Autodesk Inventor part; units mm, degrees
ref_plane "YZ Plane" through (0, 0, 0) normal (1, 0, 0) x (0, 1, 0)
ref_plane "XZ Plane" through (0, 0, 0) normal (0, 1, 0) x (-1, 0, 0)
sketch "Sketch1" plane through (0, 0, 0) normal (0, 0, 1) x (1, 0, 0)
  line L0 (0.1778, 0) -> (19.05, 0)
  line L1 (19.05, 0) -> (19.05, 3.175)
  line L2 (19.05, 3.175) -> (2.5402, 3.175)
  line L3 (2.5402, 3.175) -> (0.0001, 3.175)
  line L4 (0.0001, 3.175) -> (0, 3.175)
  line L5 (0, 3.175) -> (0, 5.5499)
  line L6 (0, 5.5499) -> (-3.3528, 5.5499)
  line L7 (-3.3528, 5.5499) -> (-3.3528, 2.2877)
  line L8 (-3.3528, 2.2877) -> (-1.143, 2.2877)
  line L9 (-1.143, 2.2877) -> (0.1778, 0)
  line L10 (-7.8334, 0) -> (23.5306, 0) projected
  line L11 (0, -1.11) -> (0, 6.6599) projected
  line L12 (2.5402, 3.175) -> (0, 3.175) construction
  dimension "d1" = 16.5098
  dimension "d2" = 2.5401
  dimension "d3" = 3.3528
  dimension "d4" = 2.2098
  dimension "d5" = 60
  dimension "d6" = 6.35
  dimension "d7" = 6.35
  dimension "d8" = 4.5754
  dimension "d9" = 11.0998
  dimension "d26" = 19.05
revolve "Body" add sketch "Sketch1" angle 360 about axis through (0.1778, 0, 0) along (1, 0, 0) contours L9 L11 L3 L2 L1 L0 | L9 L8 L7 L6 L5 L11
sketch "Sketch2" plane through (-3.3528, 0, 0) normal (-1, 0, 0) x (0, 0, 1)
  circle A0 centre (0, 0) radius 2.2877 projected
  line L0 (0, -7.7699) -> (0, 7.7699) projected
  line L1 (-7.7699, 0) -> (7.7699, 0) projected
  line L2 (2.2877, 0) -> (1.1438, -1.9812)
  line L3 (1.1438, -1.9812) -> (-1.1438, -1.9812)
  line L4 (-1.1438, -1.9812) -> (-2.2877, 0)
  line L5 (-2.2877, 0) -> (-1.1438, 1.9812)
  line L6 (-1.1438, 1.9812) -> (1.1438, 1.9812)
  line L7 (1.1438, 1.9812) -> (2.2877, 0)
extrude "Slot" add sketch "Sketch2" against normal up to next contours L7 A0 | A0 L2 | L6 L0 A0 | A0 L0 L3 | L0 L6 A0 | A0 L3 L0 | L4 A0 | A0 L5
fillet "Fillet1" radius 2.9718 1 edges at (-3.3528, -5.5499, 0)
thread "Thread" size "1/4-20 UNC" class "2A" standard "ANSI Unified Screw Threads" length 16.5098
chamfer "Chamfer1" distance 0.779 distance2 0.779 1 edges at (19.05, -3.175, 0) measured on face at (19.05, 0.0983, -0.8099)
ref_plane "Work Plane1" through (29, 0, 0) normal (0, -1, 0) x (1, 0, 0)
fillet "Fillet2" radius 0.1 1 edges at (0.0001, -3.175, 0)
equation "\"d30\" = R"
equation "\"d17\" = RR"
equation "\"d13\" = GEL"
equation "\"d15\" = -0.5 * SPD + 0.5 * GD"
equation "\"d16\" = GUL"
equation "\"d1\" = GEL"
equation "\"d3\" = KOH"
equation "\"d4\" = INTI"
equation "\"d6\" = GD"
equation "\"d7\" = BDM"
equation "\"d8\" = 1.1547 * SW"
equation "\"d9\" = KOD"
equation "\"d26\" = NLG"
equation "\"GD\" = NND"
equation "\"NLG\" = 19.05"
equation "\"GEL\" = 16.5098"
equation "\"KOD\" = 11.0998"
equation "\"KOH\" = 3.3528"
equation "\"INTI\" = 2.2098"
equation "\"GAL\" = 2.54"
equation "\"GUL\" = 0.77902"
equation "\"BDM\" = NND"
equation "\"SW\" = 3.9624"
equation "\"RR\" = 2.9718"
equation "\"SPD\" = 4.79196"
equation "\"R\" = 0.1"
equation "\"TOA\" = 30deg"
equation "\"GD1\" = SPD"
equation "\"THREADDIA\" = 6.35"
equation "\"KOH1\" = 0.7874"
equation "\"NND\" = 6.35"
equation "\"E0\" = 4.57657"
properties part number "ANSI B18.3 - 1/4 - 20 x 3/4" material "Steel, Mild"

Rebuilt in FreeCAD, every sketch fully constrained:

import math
import FreeCAD as App
import Part
import Sketcher

V = App.Vector
Q = App.Units.Quantity


def edges_at(feature, points):
    """Names of the edges that pass closest to the given points."""
    edges = feature.Shape.Edges
    near = lambda p: min(range(len(edges)), key=lambda i: edges[i].distToShape(Part.Vertex(*p))[0])
    return sorted({f"Edge{near(p) + 1}" for p in points})

doc = App.newDocument("Part")
params = doc.addObject("Spreadsheet::Sheet", "Params")
for row, (alias, value) in enumerate([
    ("sketch1_width", "0.75 in"),
    ("sketch1_width2", "0.132 in"),
    ("sketch1_width3", "0.087 in"),
    ("sketch1_width4", "0.743 in"),
    ("sketch1_height", "0.125 in"),
    ("revolution_angle", "360 deg"),
    ("pad1_length", "2.3868 mm"),
    ("fillet_radius", "0.117 in"),
    ("chamfer_size", "0.779 mm"),
    ("chamfer_size2", "0.779 mm"),
    ("fillet2_radius", "0.1 mm"),
], start=1):
    params.set(f"A{row}", alias)
    params.set(f"B{row}", "=" + value)
    params.setAlias(f"B{row}", alias)

body = doc.addObject("PartDesign::Body", "Body")

sketch1 = body.newObject("Sketcher::SketchObject", "Sketch")
sketch1.AttachmentSupport = (doc.getObject("XY_Plane"), [""])
sketch1.MapMode = "FlatFace"
sketch1.addGeometry([
    Part.LineSegment(V(0.2, 0, 0), V(19.1, 0, 0)),
    Part.LineSegment(V(19.1, 0, 0), V(19.1, 3.2, 0)),
    Part.LineSegment(V(19.1, 3.2, 0), V(0, 3.2, 0)),
    Part.LineSegment(V(0, 3.2, 0), V(0, 5.5, 0)),
    Part.LineSegment(V(0, 5.5, 0), V(-3.4, 5.5, 0)),
    Part.LineSegment(V(-3.4, 5.5, 0), V(-3.4, 2.3, 0)),
    Part.LineSegment(V(-3.4, 2.3, 0), V(-1.1, 2.3, 0)),
    Part.LineSegment(V(-1.1, 2.3, 0), V(0.2, 0, 0)),
], False)
sketch1.addConstraint([
    Sketcher.Constraint("Coincident", 0, 2, 1, 1),
    Sketcher.Constraint("Coincident", 1, 2, 2, 1),
    Sketcher.Constraint("Coincident", 2, 2, 3, 1),
    Sketcher.Constraint("Coincident", 3, 2, 4, 1),
    Sketcher.Constraint("Coincident", 4, 2, 5, 1),
    Sketcher.Constraint("Coincident", 5, 2, 6, 1),
    Sketcher.Constraint("Coincident", 6, 2, 7, 1),
    Sketcher.Constraint("Coincident", 7, 2, 0, 1),
    Sketcher.Constraint("Horizontal", 0),
    Sketcher.Constraint("Vertical", 1),
    Sketcher.Constraint("Horizontal", 2),
    Sketcher.Constraint("Vertical", 3),
    Sketcher.Constraint("Horizontal", 4),
    Sketcher.Constraint("Vertical", 5),
    Sketcher.Constraint("Horizontal", 6),
    Sketcher.Constraint("PointOnObject", 0, 2, -1),
    Sketcher.Constraint("PointOnObject", 2, 2, -2),
    Sketcher.Constraint("Angle", 7, Q("-60 deg")),
    Sketcher.Constraint("DistanceX", 2, 2, 2, 1, Q("0.75 in")),
    Sketcher.Constraint("DistanceX", 4, 2, 4, 1, Q("0.132 in")),
    Sketcher.Constraint("DistanceX", 6, 1, 6, 2, Q("0.087 in")),
    Sketcher.Constraint("DistanceX", 0, 1, 0, 2, Q("0.743 in")),
    Sketcher.Constraint("DistanceY", 1, 1, 1, 2, Q("0.125 in")),
    Sketcher.Constraint("DistanceY", 3, 1, 3, 2, Q("0.0935 in")),
])
sketch1.setExpression("Constraints[18]", "Params.sketch1_width")
sketch1.setExpression("Constraints[19]", "Params.sketch1_width2")
sketch1.setExpression("Constraints[20]", "Params.sketch1_width3")
sketch1.setExpression("Constraints[21]", "Params.sketch1_width4")
sketch1.setExpression("Constraints[22]", "Params.sketch1_height")
revolution = body.newObject("PartDesign::Revolution", "Revolution")
revolution.Profile = sketch1
revolution.ReferenceAxis = (sketch1, ["H_Axis"])
revolution.setExpression("Angle", "Params.revolution_angle")

sketch2 = body.newObject("Sketcher::SketchObject", "Sketch001")
sketch2.AttachmentSupport = (doc.getObject("YZ_Plane"), [""])
sketch2.MapMode = "FlatFace"
sketch2.AttachmentOffset = App.Placement(V(0, 0, -0.132 * 25.4), App.Rotation())
sketch2.addGeometry([
    Part.LineSegment(V(2, 1.1, 0), V(0, 2.3, 0)),
    Part.ArcOfCircle(Part.Circle(V(0, 0, 0), V(0, 0, 1), 2.3), math.radians(30), math.radians(90)),
    Part.ArcOfCircle(Part.Circle(V(0, 0, 0), V(0, 0, 1), 2.3), math.radians(90), math.radians(150)),
    Part.LineSegment(V(0, 2.3, 0), V(-2, 1.1, 0)),
    Part.ArcOfCircle(Part.Circle(V(0, 0, 0), V(0, 0, 1), 2.3), math.radians(-30), math.radians(30)),
    Part.LineSegment(V(2, 1.1, 0), V(2, -1.1, 0)),
    Part.LineSegment(V(-2, 1.1, 0), V(-2, -1.1, 0)),
    Part.ArcOfCircle(Part.Circle(V(0, 0, 0), V(0, 0, 1), 2.3), math.radians(150), math.radians(210)),
    Part.LineSegment(V(-2, -1.1, 0), V(0, -2.3, 0)),
    Part.ArcOfCircle(Part.Circle(V(0, 0, 0), V(0, 0, 1), 2.3), math.radians(-150), math.radians(-90)),
    Part.ArcOfCircle(Part.Circle(V(0, 0, 0), V(0, 0, 1), 2.3), math.radians(-90), math.radians(-30)),
    Part.LineSegment(V(0, -2.3, 0), V(2, -1.1, 0)),
], False)
sketch2.addConstraint([
    Sketcher.Constraint("Coincident", 0, 1, 1, 1),
    Sketcher.Constraint("Coincident", 1, 2, 0, 2),
    Sketcher.Constraint("Coincident", 2, 1, 3, 1),
    Sketcher.Constraint("Coincident", 3, 2, 2, 2),
    Sketcher.Constraint("Coincident", 4, 1, 5, 2),
    Sketcher.Constraint("Coincident", 5, 1, 4, 2),
    Sketcher.Constraint("Coincident", 6, 1, 7, 1),
    Sketcher.Constraint("Coincident", 7, 2, 6, 2),
    Sketcher.Constraint("Coincident", 8, 1, 9, 1),
    Sketcher.Constraint("Coincident", 9, 2, 8, 2),
    Sketcher.Constraint("Coincident", 10, 1, 11, 1),
    Sketcher.Constraint("Coincident", 11, 2, 10, 2),
    Sketcher.Constraint("Vertical", 5),
    Sketcher.Constraint("Vertical", 6),
    Sketcher.Constraint("Coincident", 1, 3, -1, 1),
    Sketcher.Constraint("Coincident", 2, 3, -1, 1),
    Sketcher.Constraint("Coincident", 4, 3, -1, 1),
    Sketcher.Constraint("Coincident", 7, 3, -1, 1),
    Sketcher.Constraint("Coincident", 9, 3, -1, 1),
    Sketcher.Constraint("Coincident", 10, 3, -1, 1),
    Sketcher.Constraint("Coincident", 2, 1, 1, 2),
    Sketcher.Constraint("Coincident", 5, 1, 0, 1),
    Sketcher.Constraint("Coincident", 6, 1, 3, 2),
    Sketcher.Constraint("Coincident", 8, 1, 7, 2),
    Sketcher.Constraint("Coincident", 10, 1, 9, 2),
    Sketcher.Constraint("PointOnObject", 1, 2, -2),
    Sketcher.Constraint("PointOnObject", 9, 2, -2),
    Sketcher.Constraint("Parallel", 0, 8),
    Sketcher.Constraint("Parallel", 3, 11),
    Sketcher.Constraint("Angle", 0, Q("149.9988 deg")),
    Sketcher.Constraint("Radius", 1, Q("2.2877 mm")),
])
pad1 = body.newObject("PartDesign::Pad", "Pad")
pad1.Profile = sketch2
pad1.setExpression("Length", "Params.pad1_length")
doc.recompute()

fillet = body.newObject("PartDesign::Fillet", "Fillet")
fillet.Base = (pad1, edges_at(pad1, [(-3.353, -5.55, 0)]))
fillet.setExpression("Radius", "Params.fillet_radius")
doc.recompute()

chamfer = body.newObject("PartDesign::Chamfer", "Chamfer")
chamfer.Base = (fillet, edges_at(fillet, [(19.05, -3.175, 0)]))
chamfer.ChamferType = "Two distances"
chamfer.setExpression("Size", "Params.chamfer_size")
chamfer.setExpression("Size2", "Params.chamfer_size2")
doc.recompute()

fillet2 = body.newObject("PartDesign::Fillet", "Fillet001")
fillet2.Base = (chamfer, edges_at(chamfer, [(0, -3.175, 0)]))
fillet2.setExpression("Radius", "Params.fillet2_radius")

doc.recompute()
